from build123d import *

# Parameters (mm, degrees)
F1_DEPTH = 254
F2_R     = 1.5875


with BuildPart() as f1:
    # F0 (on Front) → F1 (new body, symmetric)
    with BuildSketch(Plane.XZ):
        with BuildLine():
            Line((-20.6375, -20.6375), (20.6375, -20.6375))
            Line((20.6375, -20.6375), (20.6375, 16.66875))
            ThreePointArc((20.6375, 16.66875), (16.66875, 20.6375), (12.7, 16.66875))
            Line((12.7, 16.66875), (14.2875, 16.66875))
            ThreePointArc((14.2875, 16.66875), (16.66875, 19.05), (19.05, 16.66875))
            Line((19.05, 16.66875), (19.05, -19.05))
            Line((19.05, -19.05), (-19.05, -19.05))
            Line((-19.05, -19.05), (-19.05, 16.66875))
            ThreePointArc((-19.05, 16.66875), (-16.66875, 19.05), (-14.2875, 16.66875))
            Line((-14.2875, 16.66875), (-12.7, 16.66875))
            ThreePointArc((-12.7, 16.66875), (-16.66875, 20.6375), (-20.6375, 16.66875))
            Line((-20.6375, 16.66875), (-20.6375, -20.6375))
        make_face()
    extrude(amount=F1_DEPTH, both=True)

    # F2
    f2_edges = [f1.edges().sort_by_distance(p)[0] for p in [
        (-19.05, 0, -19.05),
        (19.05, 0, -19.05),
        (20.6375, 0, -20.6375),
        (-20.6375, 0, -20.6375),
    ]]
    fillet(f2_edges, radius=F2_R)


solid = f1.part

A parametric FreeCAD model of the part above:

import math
import FreeCAD as App
import Part
import Sketcher
from FreeCAD import Vector
Q = App.Units.Quantity


def edges_at(feature, points):
    """Names of the edges that pass closest to the given points."""
    edges = feature.Shape.Edges
    near = lambda p: min(range(len(edges)), key=lambda i: edges[i].distToShape(Part.Vertex(*p))[0])
    return sorted({f"Edge{near(p) + 1}" for p in points})

doc = App.newDocument("Part")
body = doc.addObject("PartDesign::Body", "Body")

sketch1 = body.newObject("Sketcher::SketchObject", "Sketch")
sketch1.AttachmentSupport = (doc.getObject("XZ_Plane"), [""])
sketch1.MapMode = "FlatFace"
sketch1.addGeometry(Part.LineSegment(Vector(-20.6, -20.6, 0), Vector(20.6, -20.6, 0)), False)
sketch1.addGeometry(Part.LineSegment(Vector(20.6, -20.6, 0), Vector(20.6, 16.7, 0)), False)
sketch1.addGeometry(Part.ArcOfCircle(Part.Circle(Vector(16.7, 16.7, 0), Vector(0, 0, 1), 4), math.radians(0), math.radians(180)), False)
sketch1.addGeometry(Part.LineSegment(Vector(12.7, 16.7, 0), Vector(14.3, 16.7, 0)), False)
sketch1.addGeometry(Part.ArcOfCircle(Part.Circle(Vector(16.7, 16.7, 0), Vector(0, 0, 1), 2.4), math.radians(0), math.radians(180)), False)
sketch1.addGeometry(Part.LineSegment(Vector(19.1, 16.7, 0), Vector(19.1, -19.1, 0)), False)
sketch1.addGeometry(Part.LineSegment(Vector(19.1, -19.1, 0), Vector(-19.1, -19.1, 0)), False)
sketch1.addGeometry(Part.LineSegment(Vector(-19.1, -19.1, 0), Vector(-19.1, 16.7, 0)), False)
sketch1.addGeometry(Part.ArcOfCircle(Part.Circle(Vector(-16.7, 16.7, 0), Vector(0, 0, 1), 2.4), math.radians(0), math.radians(180)), False)
sketch1.addGeometry(Part.LineSegment(Vector(-14.3, 16.7, 0), Vector(-12.7, 16.7, 0)), False)
sketch1.addGeometry(Part.ArcOfCircle(Part.Circle(Vector(-16.7, 16.7, 0), Vector(0, 0, 1), 4), math.radians(0), math.radians(180)), False)
sketch1.addGeometry(Part.LineSegment(Vector(-20.6, 16.7, 0), Vector(-20.6, -20.6, 0)), False)
sketch1.addConstraint(Sketcher.Constraint("Coincident", 0, 2, 1, 1))
sketch1.addConstraint(Sketcher.Constraint("Tangent", 1, 2, 2, 1))
sketch1.addConstraint(Sketcher.Constraint("Coincident", 2, 2, 3, 1))
sketch1.addConstraint(Sketcher.Constraint("Coincident", 3, 2, 4, 2))
sketch1.addConstraint(Sketcher.Constraint("Tangent", 4, 1, 5, 1))
sketch1.addConstraint(Sketcher.Constraint("Coincident", 5, 2, 6, 1))
sketch1.addConstraint(Sketcher.Constraint("Coincident", 6, 2, 7, 1))
sketch1.addConstraint(Sketcher.Constraint("Tangent", 7, 2, 8, 2))
sketch1.addConstraint(Sketcher.Constraint("Coincident", 8, 1, 9, 1))
sketch1.addConstraint(Sketcher.Constraint("Coincident", 9, 2, 10, 1))
sketch1.addConstraint(Sketcher.Constraint("Tangent", 10, 2, 11, 1))
sketch1.addConstraint(Sketcher.Constraint("Coincident", 11, 2, 0, 1))
sketch1.addConstraint(Sketcher.Constraint("Horizontal", 0))
sketch1.addConstraint(Sketcher.Constraint("Vertical", 1))
sketch1.addConstraint(Sketcher.Constraint("Horizontal", 3))
sketch1.addConstraint(Sketcher.Constraint("Vertical", 5))
sketch1.addConstraint(Sketcher.Constraint("Horizontal", 6))
sketch1.addConstraint(Sketcher.Constraint("Vertical", 7))
sketch1.addConstraint(Sketcher.Constraint("Horizontal", 9))
sketch1.addConstraint(Sketcher.Constraint("Vertical", 11))
sketch1.addConstraint(Sketcher.Constraint("Coincident", 4, 3, 2, 3))
sketch1.addConstraint(Sketcher.Constraint("Coincident", 10, 3, 8, 3))
sketch1.addConstraint(Sketcher.Constraint("Equal", 4, 8))
sketch1.addConstraint(Sketcher.Constraint("Equal", 2, 10))
sketch1.addConstraint(Sketcher.Constraint("Symmetric", 2, 3, 8, 3, -2))
sketch1.addConstraint(Sketcher.Constraint("Horizontal", 1, 2, 2, 2))
sketch1.addConstraint(Sketcher.Constraint("Horizontal", 7, 2, 8, 1))
sketch1.addConstraint(Sketcher.Constraint("DistanceX", 6, 2, 6, 1, Q("1.5 in")))
sketch1.addConstraint(Sketcher.Constraint("Radius", 2, Q("0.15625 in")))
sketch1.addConstraint(Sketcher.Constraint("Radius", 4, Q("0.09375 in")))
sketch1.addConstraint(Sketcher.Constraint("DistanceY", 1, 1, 1, 2, Q("1.46875 in")))
sketch1.addConstraint(Sketcher.Constraint("DistanceY", 5, 2, 5, 1, Q("1.40625 in")))
sketch1.addConstraint(Sketcher.Constraint("DistanceY", 5, 2, -1, 1, Q("0.75 in")))
pad1 = body.newObject("PartDesign::Pad", "Pad")
pad1.Profile = sketch1
pad1.Length = Q("20 in")
pad1.Midplane = True
doc.recompute()

fillet = body.newObject("PartDesign::Fillet", "Fillet")
fillet.Base = (pad1, edges_at(pad1, [
    (-19.05, 0, -19.05),
    (19.05, 0, -19.05),
    (20.637, 0, -20.637),
    (-20.637, 0, -20.637),
]))
fillet.Radius = Q("0.0625 in")

doc.recompute()
